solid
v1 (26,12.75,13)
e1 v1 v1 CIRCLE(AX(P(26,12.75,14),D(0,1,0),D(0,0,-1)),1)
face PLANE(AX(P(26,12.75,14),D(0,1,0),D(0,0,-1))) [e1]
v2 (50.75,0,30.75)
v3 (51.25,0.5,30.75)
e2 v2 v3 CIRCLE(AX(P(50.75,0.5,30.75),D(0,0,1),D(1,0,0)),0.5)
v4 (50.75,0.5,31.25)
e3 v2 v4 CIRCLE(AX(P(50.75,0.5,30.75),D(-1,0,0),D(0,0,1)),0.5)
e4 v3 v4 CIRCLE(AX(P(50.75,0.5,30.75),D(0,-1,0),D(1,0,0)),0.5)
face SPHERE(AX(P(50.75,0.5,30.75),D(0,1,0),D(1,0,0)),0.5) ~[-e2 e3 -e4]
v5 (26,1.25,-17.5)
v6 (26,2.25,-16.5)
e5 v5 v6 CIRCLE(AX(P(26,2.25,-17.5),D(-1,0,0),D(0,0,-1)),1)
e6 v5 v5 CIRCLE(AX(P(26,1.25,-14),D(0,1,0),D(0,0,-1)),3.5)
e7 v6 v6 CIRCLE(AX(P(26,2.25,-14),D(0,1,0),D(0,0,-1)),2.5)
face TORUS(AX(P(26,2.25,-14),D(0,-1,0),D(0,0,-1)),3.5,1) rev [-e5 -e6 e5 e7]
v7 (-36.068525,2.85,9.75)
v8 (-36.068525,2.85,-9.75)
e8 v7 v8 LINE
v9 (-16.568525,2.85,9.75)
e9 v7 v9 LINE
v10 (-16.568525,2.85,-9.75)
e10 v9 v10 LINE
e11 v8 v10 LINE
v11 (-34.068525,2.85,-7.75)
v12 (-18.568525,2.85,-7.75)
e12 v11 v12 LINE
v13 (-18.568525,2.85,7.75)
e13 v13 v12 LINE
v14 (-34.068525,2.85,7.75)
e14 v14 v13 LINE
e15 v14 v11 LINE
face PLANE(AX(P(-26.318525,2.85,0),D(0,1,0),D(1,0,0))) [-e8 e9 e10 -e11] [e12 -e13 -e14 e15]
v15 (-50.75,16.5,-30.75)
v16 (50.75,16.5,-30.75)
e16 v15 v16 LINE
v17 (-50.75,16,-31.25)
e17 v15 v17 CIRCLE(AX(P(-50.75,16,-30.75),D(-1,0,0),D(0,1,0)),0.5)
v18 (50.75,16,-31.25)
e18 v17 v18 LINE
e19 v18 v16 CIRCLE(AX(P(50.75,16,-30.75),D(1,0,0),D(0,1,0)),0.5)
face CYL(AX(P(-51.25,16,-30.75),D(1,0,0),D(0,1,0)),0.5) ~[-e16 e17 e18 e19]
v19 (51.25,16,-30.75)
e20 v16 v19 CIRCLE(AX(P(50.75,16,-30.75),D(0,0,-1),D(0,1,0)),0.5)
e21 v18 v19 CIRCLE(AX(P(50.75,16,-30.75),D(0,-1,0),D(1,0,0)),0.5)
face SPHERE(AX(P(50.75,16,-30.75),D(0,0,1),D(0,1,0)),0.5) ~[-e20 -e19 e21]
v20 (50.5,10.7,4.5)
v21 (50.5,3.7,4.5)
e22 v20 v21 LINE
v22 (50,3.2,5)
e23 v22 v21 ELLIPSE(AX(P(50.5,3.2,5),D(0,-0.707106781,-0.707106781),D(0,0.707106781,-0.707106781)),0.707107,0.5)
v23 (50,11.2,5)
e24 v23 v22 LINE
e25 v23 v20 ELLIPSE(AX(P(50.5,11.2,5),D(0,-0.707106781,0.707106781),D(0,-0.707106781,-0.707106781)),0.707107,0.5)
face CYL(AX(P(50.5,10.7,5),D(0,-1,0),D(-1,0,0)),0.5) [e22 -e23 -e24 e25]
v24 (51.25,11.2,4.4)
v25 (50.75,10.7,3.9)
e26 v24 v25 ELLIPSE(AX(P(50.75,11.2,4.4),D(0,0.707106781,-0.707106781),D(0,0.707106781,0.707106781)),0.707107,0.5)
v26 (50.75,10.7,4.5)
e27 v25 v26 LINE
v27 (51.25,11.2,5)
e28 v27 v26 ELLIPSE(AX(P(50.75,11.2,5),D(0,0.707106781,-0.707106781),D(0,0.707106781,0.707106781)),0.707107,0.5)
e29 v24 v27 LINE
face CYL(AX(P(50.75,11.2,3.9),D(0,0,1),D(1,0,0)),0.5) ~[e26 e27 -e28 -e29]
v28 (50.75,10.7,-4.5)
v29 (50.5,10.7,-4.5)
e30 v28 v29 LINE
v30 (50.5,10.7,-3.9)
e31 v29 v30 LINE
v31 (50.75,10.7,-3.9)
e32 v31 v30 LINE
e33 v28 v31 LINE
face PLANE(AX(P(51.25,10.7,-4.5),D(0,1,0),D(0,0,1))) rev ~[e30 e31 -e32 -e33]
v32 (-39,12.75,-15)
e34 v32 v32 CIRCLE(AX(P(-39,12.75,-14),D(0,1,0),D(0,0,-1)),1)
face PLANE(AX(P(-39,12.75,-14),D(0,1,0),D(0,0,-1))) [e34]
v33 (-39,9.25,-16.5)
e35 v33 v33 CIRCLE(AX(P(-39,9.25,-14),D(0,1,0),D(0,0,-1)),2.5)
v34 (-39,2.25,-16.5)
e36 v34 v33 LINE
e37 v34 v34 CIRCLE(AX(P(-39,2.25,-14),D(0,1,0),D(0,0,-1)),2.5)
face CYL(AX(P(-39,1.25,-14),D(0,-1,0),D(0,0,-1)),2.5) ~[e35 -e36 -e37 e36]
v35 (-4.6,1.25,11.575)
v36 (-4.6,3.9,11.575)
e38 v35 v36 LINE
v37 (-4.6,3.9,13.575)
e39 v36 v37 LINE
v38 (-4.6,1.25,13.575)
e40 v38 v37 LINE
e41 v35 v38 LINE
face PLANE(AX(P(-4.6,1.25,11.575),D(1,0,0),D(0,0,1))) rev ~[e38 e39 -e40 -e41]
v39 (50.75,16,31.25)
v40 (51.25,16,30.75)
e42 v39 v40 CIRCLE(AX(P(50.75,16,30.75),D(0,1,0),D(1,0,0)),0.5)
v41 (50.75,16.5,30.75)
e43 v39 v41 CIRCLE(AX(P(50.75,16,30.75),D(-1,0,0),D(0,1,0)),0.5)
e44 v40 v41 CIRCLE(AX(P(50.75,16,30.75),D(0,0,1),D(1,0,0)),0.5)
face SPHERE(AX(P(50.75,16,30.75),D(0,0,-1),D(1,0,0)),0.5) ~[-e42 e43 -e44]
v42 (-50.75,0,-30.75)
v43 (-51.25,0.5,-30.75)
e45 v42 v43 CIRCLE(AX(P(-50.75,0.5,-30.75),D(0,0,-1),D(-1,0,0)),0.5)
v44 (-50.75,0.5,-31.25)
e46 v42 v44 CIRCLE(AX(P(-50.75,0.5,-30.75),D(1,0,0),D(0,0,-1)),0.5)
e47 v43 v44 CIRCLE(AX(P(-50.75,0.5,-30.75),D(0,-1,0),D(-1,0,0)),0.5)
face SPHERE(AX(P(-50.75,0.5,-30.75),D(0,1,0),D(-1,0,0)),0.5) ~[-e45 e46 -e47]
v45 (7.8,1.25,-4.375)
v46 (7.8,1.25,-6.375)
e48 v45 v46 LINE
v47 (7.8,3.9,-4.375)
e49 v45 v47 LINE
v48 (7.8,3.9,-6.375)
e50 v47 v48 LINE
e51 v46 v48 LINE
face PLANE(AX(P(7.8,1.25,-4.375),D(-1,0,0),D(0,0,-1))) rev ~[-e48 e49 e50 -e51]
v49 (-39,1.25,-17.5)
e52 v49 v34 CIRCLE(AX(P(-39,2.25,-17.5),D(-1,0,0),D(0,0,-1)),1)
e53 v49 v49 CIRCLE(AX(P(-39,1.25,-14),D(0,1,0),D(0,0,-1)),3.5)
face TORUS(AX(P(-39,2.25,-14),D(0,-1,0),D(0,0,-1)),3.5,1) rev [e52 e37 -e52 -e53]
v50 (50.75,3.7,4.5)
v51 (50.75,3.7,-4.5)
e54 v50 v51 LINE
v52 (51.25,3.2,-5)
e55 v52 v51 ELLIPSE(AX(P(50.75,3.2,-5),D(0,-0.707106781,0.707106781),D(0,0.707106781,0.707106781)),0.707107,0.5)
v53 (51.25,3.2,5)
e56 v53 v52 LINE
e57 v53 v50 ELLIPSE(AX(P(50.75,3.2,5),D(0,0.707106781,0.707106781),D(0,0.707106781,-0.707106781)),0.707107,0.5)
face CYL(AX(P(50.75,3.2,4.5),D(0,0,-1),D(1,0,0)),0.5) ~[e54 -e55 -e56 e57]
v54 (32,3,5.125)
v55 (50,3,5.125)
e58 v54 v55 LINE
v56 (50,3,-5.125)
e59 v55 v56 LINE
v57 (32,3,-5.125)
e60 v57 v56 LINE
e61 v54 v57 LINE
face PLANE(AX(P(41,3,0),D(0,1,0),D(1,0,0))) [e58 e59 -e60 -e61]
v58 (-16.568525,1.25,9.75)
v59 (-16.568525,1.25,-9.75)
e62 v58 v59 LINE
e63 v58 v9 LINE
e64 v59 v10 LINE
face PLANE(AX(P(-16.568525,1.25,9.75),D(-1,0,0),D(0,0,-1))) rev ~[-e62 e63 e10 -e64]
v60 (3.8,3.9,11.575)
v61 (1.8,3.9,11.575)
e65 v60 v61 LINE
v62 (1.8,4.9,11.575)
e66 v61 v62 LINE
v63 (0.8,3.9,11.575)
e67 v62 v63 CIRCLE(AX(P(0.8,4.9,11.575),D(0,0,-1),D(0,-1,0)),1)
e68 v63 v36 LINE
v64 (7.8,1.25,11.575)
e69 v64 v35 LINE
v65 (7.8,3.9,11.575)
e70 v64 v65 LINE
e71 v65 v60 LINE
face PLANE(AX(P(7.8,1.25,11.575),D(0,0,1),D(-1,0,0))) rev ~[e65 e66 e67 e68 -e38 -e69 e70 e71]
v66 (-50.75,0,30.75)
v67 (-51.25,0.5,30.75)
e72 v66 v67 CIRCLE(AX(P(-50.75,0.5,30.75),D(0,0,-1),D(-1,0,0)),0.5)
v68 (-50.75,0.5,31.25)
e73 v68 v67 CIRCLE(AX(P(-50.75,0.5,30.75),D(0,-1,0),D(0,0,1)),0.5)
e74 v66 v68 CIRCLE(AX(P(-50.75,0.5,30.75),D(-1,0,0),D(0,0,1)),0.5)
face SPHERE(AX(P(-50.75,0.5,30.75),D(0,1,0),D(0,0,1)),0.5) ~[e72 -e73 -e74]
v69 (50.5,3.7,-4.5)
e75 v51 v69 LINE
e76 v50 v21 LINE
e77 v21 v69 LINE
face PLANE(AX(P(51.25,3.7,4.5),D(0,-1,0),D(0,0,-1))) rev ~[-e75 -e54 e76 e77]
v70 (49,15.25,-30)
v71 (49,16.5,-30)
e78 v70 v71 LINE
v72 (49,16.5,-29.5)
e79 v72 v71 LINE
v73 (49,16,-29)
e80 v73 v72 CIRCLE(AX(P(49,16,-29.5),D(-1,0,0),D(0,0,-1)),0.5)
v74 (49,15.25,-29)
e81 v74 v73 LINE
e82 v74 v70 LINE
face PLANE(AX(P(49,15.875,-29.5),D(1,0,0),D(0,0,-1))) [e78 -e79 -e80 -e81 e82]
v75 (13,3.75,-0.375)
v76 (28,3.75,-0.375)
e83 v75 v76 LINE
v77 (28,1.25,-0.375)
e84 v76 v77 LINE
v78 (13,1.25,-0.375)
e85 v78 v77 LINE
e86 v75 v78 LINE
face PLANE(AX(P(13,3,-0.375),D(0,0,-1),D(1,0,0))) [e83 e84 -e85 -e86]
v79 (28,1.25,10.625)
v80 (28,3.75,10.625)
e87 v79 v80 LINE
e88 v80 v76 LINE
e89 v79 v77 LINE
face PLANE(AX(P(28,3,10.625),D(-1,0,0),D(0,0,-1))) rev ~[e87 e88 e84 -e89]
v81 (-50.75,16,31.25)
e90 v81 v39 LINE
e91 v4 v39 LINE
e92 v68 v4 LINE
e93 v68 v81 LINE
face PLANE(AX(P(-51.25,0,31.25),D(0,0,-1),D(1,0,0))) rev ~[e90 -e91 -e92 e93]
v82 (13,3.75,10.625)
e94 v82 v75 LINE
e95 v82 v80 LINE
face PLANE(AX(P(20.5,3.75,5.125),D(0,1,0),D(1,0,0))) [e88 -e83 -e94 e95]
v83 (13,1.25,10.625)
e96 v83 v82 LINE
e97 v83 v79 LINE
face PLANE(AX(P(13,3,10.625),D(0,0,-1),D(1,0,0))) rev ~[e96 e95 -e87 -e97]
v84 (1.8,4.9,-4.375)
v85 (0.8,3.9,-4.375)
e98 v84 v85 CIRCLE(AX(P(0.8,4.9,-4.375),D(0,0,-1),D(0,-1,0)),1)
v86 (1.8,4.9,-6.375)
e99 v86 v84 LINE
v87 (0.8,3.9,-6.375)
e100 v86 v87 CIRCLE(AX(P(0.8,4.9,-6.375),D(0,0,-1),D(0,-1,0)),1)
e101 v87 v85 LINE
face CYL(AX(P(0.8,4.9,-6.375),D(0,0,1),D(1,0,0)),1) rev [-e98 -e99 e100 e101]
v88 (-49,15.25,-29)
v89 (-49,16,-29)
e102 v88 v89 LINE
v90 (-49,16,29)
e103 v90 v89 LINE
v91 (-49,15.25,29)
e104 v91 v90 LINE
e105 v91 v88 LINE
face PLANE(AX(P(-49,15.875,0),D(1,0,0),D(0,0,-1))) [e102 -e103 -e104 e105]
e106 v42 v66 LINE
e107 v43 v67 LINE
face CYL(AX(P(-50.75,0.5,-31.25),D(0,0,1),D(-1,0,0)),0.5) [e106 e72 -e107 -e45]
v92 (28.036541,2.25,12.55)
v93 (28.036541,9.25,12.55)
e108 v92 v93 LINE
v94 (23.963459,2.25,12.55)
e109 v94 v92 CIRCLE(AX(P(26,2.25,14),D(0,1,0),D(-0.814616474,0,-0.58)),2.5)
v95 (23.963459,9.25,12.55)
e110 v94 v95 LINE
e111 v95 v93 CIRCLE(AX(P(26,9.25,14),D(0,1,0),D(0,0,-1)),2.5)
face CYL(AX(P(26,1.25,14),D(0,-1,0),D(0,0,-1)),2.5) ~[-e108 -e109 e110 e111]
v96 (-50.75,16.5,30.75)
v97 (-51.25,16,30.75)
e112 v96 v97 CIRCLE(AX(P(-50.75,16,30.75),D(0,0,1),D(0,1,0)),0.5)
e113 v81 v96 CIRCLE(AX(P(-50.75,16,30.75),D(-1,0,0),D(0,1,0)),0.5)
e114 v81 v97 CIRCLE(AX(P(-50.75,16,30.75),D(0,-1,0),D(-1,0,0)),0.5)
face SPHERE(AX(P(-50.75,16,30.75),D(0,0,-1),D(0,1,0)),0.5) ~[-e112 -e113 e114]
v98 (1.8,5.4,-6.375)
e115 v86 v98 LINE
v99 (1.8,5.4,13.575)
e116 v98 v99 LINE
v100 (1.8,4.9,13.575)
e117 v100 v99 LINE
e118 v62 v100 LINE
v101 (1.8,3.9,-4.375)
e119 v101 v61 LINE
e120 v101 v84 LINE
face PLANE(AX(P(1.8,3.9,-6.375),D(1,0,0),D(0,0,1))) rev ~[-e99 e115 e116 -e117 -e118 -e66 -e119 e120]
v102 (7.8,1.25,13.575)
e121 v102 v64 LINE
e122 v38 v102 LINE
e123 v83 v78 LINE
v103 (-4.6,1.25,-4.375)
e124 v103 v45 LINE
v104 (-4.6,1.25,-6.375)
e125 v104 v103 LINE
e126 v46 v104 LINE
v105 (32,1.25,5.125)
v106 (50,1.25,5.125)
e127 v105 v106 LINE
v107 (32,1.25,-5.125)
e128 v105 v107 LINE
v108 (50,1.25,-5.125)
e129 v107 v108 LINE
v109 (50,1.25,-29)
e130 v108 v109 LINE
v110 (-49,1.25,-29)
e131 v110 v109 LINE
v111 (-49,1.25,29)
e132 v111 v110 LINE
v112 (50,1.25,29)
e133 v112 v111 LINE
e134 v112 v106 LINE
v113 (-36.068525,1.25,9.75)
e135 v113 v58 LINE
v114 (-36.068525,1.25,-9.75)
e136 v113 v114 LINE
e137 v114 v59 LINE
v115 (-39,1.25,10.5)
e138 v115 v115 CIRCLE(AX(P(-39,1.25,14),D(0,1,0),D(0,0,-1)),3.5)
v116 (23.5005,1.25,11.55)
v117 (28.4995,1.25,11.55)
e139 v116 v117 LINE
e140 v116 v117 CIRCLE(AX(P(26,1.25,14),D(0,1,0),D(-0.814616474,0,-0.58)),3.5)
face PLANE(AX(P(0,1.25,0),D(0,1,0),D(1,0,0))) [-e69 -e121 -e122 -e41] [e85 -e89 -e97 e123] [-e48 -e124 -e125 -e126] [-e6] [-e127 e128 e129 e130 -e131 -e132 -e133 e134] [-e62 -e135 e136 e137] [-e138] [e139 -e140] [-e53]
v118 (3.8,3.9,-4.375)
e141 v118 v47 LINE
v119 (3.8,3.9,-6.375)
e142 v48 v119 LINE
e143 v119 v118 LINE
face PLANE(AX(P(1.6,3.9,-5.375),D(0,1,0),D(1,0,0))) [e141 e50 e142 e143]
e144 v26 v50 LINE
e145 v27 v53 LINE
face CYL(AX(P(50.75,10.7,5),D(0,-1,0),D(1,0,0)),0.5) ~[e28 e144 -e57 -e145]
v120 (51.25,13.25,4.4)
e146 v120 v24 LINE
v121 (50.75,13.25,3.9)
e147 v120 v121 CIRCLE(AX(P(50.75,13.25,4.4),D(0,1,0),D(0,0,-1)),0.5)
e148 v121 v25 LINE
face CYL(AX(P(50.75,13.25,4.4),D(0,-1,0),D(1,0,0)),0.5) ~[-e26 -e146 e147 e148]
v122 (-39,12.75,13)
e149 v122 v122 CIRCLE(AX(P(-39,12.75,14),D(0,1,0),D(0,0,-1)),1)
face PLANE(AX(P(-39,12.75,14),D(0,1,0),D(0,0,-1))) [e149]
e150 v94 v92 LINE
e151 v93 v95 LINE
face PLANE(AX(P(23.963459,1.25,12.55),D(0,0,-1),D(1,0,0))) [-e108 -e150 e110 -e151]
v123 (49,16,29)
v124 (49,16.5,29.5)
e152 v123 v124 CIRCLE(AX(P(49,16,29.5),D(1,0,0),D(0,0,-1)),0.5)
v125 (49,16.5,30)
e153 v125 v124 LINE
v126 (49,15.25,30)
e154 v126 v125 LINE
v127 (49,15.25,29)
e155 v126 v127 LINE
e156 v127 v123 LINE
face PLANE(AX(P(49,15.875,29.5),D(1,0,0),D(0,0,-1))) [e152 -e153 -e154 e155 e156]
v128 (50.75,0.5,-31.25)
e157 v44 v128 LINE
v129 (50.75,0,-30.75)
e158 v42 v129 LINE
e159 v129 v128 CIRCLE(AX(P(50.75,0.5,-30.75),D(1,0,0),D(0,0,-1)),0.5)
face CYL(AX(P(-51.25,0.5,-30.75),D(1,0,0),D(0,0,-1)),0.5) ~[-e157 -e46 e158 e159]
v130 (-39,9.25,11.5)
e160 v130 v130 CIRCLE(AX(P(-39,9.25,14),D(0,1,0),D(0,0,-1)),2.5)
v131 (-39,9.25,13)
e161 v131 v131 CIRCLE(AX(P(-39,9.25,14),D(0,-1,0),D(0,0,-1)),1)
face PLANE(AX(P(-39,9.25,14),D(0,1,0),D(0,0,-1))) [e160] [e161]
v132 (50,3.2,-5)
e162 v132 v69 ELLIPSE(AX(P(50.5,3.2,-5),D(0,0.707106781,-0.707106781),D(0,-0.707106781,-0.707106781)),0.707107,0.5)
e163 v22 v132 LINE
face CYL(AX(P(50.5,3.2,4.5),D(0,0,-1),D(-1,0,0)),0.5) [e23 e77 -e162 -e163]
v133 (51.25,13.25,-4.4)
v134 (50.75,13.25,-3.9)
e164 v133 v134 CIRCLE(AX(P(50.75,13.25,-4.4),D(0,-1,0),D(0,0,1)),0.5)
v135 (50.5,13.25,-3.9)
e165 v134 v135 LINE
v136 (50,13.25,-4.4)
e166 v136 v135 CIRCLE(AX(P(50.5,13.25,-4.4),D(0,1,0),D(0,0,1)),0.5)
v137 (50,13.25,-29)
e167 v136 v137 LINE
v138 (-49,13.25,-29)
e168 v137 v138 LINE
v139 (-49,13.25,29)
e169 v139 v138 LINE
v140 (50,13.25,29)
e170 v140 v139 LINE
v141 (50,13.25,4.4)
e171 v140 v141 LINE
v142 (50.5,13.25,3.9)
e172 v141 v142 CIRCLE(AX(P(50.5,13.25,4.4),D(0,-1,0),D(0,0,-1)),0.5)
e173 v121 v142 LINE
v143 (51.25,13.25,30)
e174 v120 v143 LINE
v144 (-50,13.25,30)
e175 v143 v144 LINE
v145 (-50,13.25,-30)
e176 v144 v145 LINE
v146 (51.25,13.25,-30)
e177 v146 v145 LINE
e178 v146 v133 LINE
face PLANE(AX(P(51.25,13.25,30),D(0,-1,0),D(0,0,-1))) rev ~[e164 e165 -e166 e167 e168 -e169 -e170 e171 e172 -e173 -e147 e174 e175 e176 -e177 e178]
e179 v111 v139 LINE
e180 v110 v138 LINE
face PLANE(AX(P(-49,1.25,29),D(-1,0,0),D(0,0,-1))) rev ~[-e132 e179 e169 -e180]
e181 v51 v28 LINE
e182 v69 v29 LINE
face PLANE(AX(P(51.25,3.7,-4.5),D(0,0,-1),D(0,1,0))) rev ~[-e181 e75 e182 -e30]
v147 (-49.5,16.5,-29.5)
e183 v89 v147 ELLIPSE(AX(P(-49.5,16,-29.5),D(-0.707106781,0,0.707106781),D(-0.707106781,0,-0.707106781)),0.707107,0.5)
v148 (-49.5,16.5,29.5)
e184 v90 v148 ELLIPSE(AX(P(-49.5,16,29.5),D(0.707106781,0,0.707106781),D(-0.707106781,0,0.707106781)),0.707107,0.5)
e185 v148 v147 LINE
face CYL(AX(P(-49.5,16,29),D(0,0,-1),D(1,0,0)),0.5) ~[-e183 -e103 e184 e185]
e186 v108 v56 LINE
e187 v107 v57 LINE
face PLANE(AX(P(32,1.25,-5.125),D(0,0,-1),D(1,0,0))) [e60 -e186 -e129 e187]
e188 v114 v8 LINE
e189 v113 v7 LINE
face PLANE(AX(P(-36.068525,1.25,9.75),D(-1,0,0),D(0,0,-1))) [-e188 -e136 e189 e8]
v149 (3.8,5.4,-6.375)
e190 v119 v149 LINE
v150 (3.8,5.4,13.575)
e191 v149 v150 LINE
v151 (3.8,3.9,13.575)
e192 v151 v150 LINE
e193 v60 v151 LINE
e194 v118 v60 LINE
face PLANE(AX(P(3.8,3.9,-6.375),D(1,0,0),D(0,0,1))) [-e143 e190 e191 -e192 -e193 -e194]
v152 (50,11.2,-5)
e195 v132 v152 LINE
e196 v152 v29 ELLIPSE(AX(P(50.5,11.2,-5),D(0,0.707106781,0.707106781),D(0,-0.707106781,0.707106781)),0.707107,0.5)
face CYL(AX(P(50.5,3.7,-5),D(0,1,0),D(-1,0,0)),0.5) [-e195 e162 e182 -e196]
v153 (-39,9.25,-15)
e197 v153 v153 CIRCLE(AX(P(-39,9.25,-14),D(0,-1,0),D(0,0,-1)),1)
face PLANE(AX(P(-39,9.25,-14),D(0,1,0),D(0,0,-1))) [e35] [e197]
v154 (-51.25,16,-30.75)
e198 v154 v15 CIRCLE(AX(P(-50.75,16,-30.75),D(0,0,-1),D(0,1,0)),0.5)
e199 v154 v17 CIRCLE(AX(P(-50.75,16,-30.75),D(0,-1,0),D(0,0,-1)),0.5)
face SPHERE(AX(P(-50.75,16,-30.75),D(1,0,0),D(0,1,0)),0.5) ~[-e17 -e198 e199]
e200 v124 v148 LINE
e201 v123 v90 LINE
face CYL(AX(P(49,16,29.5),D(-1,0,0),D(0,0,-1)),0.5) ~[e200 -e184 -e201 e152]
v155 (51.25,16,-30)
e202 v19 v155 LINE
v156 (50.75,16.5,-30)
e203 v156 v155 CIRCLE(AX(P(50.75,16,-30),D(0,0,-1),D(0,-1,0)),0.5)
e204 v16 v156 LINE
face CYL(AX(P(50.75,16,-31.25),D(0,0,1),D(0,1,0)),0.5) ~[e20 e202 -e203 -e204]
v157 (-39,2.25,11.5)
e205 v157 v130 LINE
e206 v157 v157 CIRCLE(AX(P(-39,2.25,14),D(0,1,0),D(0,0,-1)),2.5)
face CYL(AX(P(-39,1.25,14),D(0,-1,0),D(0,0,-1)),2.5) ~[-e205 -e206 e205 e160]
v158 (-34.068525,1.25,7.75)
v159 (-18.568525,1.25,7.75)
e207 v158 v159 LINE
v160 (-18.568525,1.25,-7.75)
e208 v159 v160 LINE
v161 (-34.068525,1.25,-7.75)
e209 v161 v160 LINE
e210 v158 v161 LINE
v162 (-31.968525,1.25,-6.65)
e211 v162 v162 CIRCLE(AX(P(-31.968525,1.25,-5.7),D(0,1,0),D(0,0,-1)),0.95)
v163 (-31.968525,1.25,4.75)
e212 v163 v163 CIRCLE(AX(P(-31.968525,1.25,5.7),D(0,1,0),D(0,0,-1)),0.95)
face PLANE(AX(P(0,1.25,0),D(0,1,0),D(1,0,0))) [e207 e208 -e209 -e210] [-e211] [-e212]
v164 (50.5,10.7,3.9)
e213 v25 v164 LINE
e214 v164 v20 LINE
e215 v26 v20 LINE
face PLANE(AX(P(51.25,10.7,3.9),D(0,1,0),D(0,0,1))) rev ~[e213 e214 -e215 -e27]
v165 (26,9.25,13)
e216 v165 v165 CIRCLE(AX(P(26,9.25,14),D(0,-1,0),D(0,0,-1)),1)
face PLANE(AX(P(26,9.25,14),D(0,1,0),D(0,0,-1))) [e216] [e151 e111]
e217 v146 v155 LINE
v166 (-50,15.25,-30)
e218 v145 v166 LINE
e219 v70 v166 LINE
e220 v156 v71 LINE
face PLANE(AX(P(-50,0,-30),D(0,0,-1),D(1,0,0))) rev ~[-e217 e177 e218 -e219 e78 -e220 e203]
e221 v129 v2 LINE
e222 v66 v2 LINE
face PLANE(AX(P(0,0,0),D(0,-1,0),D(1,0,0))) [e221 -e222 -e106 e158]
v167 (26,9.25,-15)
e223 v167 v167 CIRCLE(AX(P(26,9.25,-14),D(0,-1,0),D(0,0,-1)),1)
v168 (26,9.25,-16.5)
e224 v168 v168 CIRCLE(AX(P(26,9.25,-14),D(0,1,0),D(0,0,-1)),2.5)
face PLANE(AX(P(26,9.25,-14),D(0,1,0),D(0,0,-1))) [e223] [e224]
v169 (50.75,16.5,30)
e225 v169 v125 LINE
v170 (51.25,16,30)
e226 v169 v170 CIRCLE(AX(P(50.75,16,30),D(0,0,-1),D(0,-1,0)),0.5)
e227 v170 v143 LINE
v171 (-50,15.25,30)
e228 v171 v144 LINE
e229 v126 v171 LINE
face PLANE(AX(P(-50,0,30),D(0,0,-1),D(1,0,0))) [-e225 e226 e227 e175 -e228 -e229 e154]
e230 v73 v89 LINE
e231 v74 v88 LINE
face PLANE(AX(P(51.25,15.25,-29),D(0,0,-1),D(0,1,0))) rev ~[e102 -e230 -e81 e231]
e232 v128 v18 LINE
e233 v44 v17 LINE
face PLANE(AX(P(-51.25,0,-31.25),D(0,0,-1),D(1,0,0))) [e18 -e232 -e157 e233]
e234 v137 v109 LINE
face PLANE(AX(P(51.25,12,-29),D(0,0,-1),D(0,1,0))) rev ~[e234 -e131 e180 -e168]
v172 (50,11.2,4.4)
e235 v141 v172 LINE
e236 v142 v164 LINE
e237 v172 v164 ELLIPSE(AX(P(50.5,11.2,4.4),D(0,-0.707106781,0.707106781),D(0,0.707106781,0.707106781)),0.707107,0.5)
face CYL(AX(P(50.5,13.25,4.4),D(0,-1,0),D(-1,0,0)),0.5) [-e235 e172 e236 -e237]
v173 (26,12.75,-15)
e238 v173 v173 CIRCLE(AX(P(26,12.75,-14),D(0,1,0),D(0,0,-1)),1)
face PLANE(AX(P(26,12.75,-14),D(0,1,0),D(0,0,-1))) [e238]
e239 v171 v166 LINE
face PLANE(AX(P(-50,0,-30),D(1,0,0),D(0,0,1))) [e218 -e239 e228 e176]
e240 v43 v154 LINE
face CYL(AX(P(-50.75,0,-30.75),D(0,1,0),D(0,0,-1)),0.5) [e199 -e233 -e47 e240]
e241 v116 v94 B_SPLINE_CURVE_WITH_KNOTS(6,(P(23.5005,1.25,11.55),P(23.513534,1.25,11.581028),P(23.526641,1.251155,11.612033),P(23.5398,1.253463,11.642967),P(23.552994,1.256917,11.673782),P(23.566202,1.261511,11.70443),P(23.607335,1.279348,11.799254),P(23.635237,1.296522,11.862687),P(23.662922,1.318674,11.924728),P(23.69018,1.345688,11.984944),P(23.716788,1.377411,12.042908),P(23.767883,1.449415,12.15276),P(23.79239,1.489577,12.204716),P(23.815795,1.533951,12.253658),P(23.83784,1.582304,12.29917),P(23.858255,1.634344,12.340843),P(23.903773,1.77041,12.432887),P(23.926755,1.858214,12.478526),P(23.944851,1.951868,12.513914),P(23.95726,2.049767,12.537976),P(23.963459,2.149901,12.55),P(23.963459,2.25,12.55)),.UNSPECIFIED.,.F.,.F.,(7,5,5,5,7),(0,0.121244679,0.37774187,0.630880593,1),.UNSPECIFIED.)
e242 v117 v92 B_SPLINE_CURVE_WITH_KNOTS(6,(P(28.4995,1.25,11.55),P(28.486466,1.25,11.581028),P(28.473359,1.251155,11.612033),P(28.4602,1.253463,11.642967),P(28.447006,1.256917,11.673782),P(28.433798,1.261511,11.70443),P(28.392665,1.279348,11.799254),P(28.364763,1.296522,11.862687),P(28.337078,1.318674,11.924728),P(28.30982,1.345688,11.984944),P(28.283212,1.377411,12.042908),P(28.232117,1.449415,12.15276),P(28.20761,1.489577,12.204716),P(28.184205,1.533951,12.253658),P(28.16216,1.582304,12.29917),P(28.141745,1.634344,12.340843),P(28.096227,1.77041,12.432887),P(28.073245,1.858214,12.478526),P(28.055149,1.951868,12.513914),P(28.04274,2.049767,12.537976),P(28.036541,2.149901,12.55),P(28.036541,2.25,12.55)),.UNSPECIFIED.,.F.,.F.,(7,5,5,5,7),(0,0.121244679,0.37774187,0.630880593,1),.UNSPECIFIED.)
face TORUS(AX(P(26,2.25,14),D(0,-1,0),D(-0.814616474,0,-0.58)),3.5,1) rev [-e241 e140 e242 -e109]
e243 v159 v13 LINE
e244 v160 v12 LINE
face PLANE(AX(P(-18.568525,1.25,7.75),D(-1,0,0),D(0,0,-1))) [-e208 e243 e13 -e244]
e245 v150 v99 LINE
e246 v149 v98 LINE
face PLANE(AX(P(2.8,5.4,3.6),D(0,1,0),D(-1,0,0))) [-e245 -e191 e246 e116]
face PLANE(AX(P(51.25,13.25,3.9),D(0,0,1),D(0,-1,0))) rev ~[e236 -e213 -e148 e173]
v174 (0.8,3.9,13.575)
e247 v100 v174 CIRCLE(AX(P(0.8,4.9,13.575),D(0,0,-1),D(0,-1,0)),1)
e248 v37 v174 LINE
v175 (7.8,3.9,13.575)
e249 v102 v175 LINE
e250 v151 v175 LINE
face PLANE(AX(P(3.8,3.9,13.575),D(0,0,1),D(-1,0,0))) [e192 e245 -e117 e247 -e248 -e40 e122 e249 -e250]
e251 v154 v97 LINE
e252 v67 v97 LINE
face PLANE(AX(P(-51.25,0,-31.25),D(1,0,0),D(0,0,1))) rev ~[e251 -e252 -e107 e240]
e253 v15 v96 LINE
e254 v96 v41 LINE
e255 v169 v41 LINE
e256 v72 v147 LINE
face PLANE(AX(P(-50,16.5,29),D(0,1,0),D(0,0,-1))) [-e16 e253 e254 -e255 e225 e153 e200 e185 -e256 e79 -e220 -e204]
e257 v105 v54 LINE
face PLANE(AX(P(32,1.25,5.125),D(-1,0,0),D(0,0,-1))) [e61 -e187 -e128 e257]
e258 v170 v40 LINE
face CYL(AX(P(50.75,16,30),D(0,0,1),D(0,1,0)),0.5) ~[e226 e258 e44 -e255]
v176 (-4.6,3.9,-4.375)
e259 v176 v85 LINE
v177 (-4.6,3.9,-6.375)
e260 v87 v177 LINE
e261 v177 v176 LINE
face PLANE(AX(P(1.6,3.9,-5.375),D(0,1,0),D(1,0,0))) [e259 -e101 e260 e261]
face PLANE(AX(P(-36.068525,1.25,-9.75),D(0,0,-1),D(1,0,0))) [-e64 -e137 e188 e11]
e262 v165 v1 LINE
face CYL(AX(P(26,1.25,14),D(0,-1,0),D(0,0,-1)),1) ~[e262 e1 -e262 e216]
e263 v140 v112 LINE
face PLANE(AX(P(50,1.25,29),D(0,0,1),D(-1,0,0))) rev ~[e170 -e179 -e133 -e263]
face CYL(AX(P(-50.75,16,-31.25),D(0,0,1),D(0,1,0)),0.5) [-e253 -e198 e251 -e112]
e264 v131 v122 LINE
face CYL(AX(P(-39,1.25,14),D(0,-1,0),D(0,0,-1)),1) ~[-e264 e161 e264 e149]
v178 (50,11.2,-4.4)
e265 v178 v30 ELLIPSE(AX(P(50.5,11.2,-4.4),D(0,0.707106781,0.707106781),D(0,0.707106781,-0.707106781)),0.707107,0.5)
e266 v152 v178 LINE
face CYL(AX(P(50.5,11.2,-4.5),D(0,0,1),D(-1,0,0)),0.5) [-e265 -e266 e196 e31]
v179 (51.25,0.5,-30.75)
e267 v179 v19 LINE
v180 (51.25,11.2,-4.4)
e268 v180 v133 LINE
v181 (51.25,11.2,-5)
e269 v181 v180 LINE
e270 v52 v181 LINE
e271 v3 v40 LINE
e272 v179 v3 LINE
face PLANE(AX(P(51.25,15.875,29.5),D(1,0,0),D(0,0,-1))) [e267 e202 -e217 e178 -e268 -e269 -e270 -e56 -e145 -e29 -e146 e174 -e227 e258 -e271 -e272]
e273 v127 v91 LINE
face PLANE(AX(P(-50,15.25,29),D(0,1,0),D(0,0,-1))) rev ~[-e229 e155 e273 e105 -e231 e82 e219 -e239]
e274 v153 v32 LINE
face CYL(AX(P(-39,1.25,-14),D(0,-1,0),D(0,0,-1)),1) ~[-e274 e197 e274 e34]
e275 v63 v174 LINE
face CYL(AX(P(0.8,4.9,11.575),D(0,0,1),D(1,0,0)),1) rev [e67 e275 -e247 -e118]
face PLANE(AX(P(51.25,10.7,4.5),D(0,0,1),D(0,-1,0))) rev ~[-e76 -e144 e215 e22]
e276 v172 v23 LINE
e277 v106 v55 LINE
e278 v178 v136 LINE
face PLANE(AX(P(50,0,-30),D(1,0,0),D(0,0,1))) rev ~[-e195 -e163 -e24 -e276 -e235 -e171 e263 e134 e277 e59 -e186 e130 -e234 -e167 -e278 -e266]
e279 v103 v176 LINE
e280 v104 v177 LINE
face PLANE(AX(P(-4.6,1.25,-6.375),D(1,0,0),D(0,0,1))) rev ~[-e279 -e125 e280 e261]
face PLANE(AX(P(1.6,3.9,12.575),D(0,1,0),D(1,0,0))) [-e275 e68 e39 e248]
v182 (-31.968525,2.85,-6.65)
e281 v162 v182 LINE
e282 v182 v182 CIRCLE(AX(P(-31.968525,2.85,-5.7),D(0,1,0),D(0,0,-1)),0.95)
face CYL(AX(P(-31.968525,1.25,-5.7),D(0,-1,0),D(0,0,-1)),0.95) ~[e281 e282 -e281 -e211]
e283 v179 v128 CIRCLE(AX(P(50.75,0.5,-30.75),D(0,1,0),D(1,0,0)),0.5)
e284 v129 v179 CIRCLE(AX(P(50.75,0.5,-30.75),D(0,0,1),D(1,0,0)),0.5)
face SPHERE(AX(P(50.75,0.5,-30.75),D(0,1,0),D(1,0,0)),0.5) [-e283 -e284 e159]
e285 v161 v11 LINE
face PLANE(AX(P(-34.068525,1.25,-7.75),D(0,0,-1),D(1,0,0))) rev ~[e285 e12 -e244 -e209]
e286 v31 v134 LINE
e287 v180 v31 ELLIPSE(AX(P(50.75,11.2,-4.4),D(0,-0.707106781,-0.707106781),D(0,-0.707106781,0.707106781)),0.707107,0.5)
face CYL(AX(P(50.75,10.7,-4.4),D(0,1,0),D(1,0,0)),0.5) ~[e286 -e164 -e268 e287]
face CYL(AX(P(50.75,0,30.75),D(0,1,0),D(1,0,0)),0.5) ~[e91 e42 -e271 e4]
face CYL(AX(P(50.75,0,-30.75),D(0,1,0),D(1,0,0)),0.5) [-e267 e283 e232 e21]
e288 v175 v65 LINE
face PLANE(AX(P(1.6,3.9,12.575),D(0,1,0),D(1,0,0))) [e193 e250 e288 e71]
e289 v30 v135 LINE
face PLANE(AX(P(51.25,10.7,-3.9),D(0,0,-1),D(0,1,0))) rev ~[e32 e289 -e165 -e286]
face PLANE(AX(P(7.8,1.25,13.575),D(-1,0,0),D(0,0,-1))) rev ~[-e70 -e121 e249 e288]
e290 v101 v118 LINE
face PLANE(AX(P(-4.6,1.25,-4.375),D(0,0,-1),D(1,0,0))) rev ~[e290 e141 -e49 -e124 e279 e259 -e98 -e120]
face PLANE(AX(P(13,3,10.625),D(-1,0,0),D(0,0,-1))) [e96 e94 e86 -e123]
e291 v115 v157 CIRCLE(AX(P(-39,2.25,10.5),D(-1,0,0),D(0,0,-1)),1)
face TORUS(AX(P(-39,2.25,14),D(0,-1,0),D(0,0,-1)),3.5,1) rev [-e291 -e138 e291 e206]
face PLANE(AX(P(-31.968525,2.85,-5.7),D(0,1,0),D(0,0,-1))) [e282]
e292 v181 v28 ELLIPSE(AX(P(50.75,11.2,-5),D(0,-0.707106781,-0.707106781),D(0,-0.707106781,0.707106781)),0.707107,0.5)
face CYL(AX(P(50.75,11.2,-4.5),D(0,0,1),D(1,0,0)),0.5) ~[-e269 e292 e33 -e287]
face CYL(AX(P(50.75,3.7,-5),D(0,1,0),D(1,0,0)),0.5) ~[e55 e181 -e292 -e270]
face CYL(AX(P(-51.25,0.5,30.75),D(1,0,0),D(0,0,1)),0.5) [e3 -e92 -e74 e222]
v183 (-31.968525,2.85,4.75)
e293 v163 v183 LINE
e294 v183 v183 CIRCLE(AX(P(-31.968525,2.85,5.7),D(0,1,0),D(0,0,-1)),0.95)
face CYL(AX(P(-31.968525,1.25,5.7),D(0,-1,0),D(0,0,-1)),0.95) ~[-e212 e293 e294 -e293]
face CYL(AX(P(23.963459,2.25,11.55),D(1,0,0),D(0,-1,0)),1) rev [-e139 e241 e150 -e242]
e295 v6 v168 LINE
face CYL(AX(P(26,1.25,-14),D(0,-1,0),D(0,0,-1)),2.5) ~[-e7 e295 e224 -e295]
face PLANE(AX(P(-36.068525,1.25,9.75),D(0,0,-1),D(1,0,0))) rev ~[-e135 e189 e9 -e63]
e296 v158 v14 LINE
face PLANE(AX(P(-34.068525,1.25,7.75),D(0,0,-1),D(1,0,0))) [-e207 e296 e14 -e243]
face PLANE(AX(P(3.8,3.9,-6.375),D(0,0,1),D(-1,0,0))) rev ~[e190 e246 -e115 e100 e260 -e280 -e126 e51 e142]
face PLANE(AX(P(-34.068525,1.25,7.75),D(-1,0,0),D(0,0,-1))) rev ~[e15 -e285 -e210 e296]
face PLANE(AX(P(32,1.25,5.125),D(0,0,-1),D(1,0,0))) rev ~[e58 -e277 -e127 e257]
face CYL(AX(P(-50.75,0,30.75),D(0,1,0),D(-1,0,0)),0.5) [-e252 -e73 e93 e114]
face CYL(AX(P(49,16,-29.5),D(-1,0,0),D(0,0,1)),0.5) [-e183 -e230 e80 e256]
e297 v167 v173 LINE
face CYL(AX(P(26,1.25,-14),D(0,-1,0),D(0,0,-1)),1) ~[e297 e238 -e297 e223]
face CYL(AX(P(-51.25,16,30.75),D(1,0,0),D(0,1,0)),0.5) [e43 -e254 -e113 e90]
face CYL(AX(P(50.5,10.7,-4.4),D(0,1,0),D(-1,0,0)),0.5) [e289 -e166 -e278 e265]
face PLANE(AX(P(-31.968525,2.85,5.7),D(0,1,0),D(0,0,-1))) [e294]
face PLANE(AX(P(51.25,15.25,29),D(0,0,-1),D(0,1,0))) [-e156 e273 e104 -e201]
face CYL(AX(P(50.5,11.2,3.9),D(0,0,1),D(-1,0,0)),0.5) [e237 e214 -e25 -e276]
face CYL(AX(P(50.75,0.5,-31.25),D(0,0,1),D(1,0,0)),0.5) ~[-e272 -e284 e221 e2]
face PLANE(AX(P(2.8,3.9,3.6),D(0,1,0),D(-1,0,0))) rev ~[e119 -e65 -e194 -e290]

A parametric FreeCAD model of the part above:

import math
import FreeCAD as App
import Part
import Sketcher
from FreeCAD import Vector


def edges_at(feature, points):
    """Names of the edges that pass closest to the given points."""
    edges = feature.Shape.Edges
    near = lambda p: min(range(len(edges)), key=lambda i: edges[i].distToShape(Part.Vertex(*p))[0])
    return sorted({f"Edge{near(p) + 1}" for p in points})


def add_polygon(sketch, points):
    """Adds a closed chain of lines whose ends are joined by coincident constraints."""
    first, n = sketch.GeometryCount, len(points)
    for a, b in zip(points, points[1:] + points[:1]):
        sketch.addGeometry(Part.LineSegment(App.Vector(*a, 0), App.Vector(*b, 0)), False)
    for i in range(n):
        sketch.addConstraint(Sketcher.Constraint("Coincident", first + i, 2, first + (i + 1) % n, 1))

doc = App.newDocument("Part")
body = doc.addObject("PartDesign::Body", "Body")

# Sketch on XZ plane
sketch1 = body.newObject("Sketcher::SketchObject", "Sketch")
sketch1.AttachmentSupport = (doc.getObject("XZ_Plane"), [""])
sketch1.MapMode = "FlatFace"
add_polygon(sketch1, [(-50, -30), (-50, 30), (50, 30), (50, -30)])  # lines 0-3
sketch1.addConstraint([
    Sketcher.Constraint("Vertical", 0),
    Sketcher.Constraint("Horizontal", 1),
    Sketcher.Constraint("Vertical", 2),
    Sketcher.Constraint("Horizontal", 3),
    Sketcher.Constraint("Symmetric", 0, 2, 2, 2, -1, 1),
    Sketcher.Constraint("DistanceX", 1, 1, 1, 2, 100.0),
    Sketcher.Constraint("DistanceY", 0, 1, 0, 2, 60.0),
])
pad1 = body.newObject("PartDesign::Pad", "Pad")
pad1.Profile = sketch1
pad1.Length = 1.25
pad1.Reversed = True

# Sketch on XZ plane
sketch2 = body.newObject("Sketcher::SketchObject", "Sketch001")
sketch2.AttachmentSupport = (doc.getObject("XZ_Plane"), [""])
sketch2.MapMode = "FlatFace"
sketch2.AttachmentOffset = App.Placement(Vector(0, 0, -1.25), App.Rotation())
sketch2.addGeometry([
    Part.Circle(Vector(-39, -14, 0), Vector(0, 0, 1), 1),
    Part.Circle(Vector(26, -14, 0), Vector(0, 0, 1), 1),
    Part.Circle(Vector(26, 14, 0), Vector(0, 0, 1), 1),
    Part.Circle(Vector(-39, 14, 0), Vector(0, 0, 1), 1),
], False)
sketch2.addConstraint([
    Sketcher.Constraint("Equal", 0, 1),
    Sketcher.Constraint("Equal", 1, 2),
    Sketcher.Constraint("Equal", 2, 3),
    Sketcher.Constraint("Symmetric", 1, 3, 2, 3, -1),
    Sketcher.Constraint("Symmetric", 0, 3, 3, 3, -1),
    Sketcher.Constraint("Horizontal", 0, 3, 1, 3),
    Sketcher.Constraint("Diameter", 0, 2.0),
    Sketcher.Constraint("DistanceX", 0, 3, -1, 1, 39.0),
    Sketcher.Constraint("DistanceY", 0, 3, -1, 1, 14.0),
    Sketcher.Constraint("DistanceX", -1, 1, 1, 3, 26.0),
])
pad2 = body.newObject("PartDesign::Pad", "Pad001")
pad2.Profile = sketch2
pad2.Length = 11.5
pad2.Reversed = True

# Sketch on XZ plane
sketch3 = body.newObject("Sketcher::SketchObject", "Sketch002")
sketch3.AttachmentSupport = (doc.getObject("XZ_Plane"), [""])
sketch3.MapMode = "FlatFace"
add_polygon(sketch3, [(-51, 31), (-51, -31), (51, -31), (51, 31)])  # lines 0-3
add_polygon(sketch3, [(50, -30), (-50, -30), (-50, 30), (50, 30)])  # lines 4-7
sketch3.addConstraint([
    Sketcher.Constraint("Vertical", 0),
    Sketcher.Constraint("Horizontal", 1),
    Sketcher.Constraint("Vertical", 2),
    Sketcher.Constraint("Horizontal", 3),
    Sketcher.Constraint("Horizontal", 4),
    Sketcher.Constraint("Vertical", 5),
    Sketcher.Constraint("Horizontal", 6),
    Sketcher.Constraint("Vertical", 7),
    Sketcher.Constraint("Symmetric", 0, 2, 2, 2, -1, 1),
    Sketcher.Constraint("Symmetric", 4, 2, 6, 2, -1, 1),
    Sketcher.Constraint("DistanceX", 4, 2, 4, 1, 100.0),
    Sketcher.Constraint("DistanceY", 5, 1, 5, 2, 60.0),
    Sketcher.Constraint("DistanceX", 1, 1, 1, 2, 102.5),
    Sketcher.Constraint("DistanceY", 0, 2, 0, 1, 62.5),
])
pad3 = body.newObject("PartDesign::Pad", "Pad002")
pad3.Profile = sketch3
pad3.Length = 16.5
pad3.Reversed = True

# Sketch on XZ plane
sketch4 = body.newObject("Sketcher::SketchObject", "Sketch003")
sketch4.AttachmentSupport = (doc.getObject("XZ_Plane"), [""])
sketch4.MapMode = "FlatFace"
sketch4.AttachmentOffset = App.Placement(Vector(0, 0, -1.25), App.Rotation())
sketch4.addGeometry([
    Part.Circle(Vector(-39, -14, 0), Vector(0, 0, 1), 2.5),
    Part.Circle(Vector(26, -14, 0), Vector(0, 0, 1), 2.5),
    Part.Circle(Vector(26, 14, 0), Vector(0, 0, 1), 2.5),
    Part.Circle(Vector(-39, 14, 0), Vector(0, 0, 1), 2.5),
], False)
sketch4.addConstraint([
    Sketcher.Constraint("Equal", 0, 1),
    Sketcher.Constraint("Equal", 1, 2),
    Sketcher.Constraint("Equal", 2, 3),
    Sketcher.Constraint("Symmetric", 1, 3, 2, 3, -1),
    Sketcher.Constraint("Symmetric", 0, 3, 3, 3, -1),
    Sketcher.Constraint("Horizontal", 0, 3, 1, 3),
    Sketcher.Constraint("Diameter", 0, 5.0),
    Sketcher.Constraint("DistanceX", 0, 3, -1, 1, 39.0),
    Sketcher.Constraint("DistanceY", 0, 3, -1, 1, 14.0),
    Sketcher.Constraint("DistanceX", -1, 1, 1, 3, 26.0),
])
pad4 = body.newObject("PartDesign::Pad", "Pad003")
pad4.Profile = sketch4
pad4.Length = 8
pad4.Reversed = True

# Sketch on YZ plane
sketch5 = body.newObject("Sketcher::SketchObject", "Sketch004")
sketch5.AttachmentSupport = (doc.getObject("YZ_Plane"), [""])
sketch5.MapMode = "FlatFace"
sketch5.AttachmentOffset = App.Placement(Vector(0, 0, 51.25), App.Rotation())
add_polygon(sketch5, [(16.5, 30), (13.2, 30), (13.2, -30), (16.5, -30)])  # lines 0-3
sketch5.addConstraint([
    Sketcher.Constraint("Horizontal", 0),
    Sketcher.Constraint("Vertical", 1),
    Sketcher.Constraint("Horizontal", 2),
    Sketcher.Constraint("Vertical", 3),
    Sketcher.Constraint("DistanceY", 1, 2, 1, 1, 60.0),
    Sketcher.Constraint("DistanceY", -1, 1, 0, 2, 30.0),
    Sketcher.Constraint("DistanceX", 0, 2, 0, 1, 3.25),
    Sketcher.Constraint("DistanceX", -1, 1, 2, 2, 16.5),
])
pocket1 = body.newObject("PartDesign::Pocket", "Pocket")
pocket1.Profile = sketch5
pocket1.Length = 101.25

# Sketch on YZ plane
sketch6 = body.newObject("Sketcher::SketchObject", "Sketch005")
sketch6.AttachmentSupport = (doc.getObject("YZ_Plane"), [""])
sketch6.MapMode = "FlatFace"
sketch6.AttachmentOffset = App.Placement(Vector(0, 0, 51.25), App.Rotation())
add_polygon(sketch6, [(16.5, 30), (15.2, 30), (15.2, 29), (16.5, 29)])  # lines 0-3
add_polygon(sketch6, [(16.5, -29), (15.2, -29), (15.2, -30), (16.5, -30)])  # lines 4-7
add_polygon(sketch6, [(13.2, 30), (12, 30), (12, 29), (13.2, 29)])  # lines 8-11
add_polygon(sketch6, [(13.2, -29), (12, -29), (12, -30), (13.2, -30)])  # lines 12-15
sketch6.addConstraint([
    Sketcher.Constraint("Horizontal", 0),
    Sketcher.Constraint("Vertical", 1),
    Sketcher.Constraint("Horizontal", 2),
    Sketcher.Constraint("Vertical", 3),
    Sketcher.Constraint("Horizontal", 4),
    Sketcher.Constraint("Vertical", 5),
    Sketcher.Constraint("Horizontal", 6),
    Sketcher.Constraint("Vertical", 7),
    Sketcher.Constraint("Horizontal", 8),
    Sketcher.Constraint("Vertical", 9),
    Sketcher.Constraint("Horizontal", 10),
    Sketcher.Constraint("Vertical", 11),
    Sketcher.Constraint("Horizontal", 12),
    Sketcher.Constraint("Vertical", 13),
    Sketcher.Constraint("Horizontal", 14),
    Sketcher.Constraint("Vertical", 15),
    Sketcher.Constraint("Symmetric", 1, 2, 4, 2, -1),
    Sketcher.Constraint("Symmetric", 3, 2, 6, 2, -1),
    Sketcher.Constraint("Symmetric", 9, 2, 12, 2, -1),
    Sketcher.Constraint("Symmetric", 11, 2, 14, 2, -1),
    Sketcher.Constraint("Horizontal", 3, 2, 8, 2),
    Sketcher.Constraint("Horizontal", 2, 2, 9, 2),
    Sketcher.Constraint("Equal", 6, 8),
    Sketcher.Constraint("DistanceY", 1, 2, 1, 1, 1.0),
    Sketcher.Constraint("DistanceY", -1, 1, 0, 2, 30.0),
    Sketcher.Constraint("DistanceX", -1, 1, 8, 2, 12.0),
    Sketcher.Constraint("DistanceX", 10, 2, 1, 2, 2.0),
    Sketcher.Constraint("DistanceX", 0, 2, 0, 1, 1.25),
])
pad5 = body.newObject("PartDesign::Pad", "Pad004")
pad5.Profile = sketch6
pad5.Length = 101.25
pad5.Reversed = True

# Sketch on YZ plane
sketch7 = body.newObject("Sketcher::SketchObject", "Sketch006")
sketch7.AttachmentSupport = (doc.getObject("YZ_Plane"), [""])
sketch7.MapMode = "FlatFace"
sketch7.AttachmentOffset = App.Placement(Vector(0, 0, 51.25), App.Rotation())
add_polygon(sketch7, [(16.5, 30), (15.2, 30), (15.2, 29), (16.5, 29)])  # lines 0-3
add_polygon(sketch7, [(16.5, -29), (15.2, -29), (15.2, -30), (16.5, -30)])  # lines 4-7
sketch7.addConstraint([
    Sketcher.Constraint("Horizontal", 0),
    Sketcher.Constraint("Vertical", 1),
    Sketcher.Constraint("Horizontal", 2),
    Sketcher.Constraint("Vertical", 3),
    Sketcher.Constraint("Horizontal", 4),
    Sketcher.Constraint("Vertical", 5),
    Sketcher.Constraint("Horizontal", 6),
    Sketcher.Constraint("Vertical", 7),
    Sketcher.Constraint("Symmetric", 1, 2, 4, 2, -1),
    Sketcher.Constraint("Symmetric", 3, 2, 6, 2, -1),
    Sketcher.Constraint("DistanceY", 1, 2, 1, 1, 1.0),
    Sketcher.Constraint("DistanceY", -1, 1, 0, 2, 30.0),
    Sketcher.Constraint("DistanceX", 0, 2, 0, 1, 1.25),
    Sketcher.Constraint("DistanceX", -1, 1, 2, 2, 16.5),
])
pocket2 = body.newObject("PartDesign::Pocket", "Pocket001")
pocket2.Profile = sketch7
pocket2.Length = 2.25

# Sketch on YZ plane
sketch8 = body.newObject("Sketcher::SketchObject", "Sketch007")
sketch8.AttachmentSupport = (doc.getObject("YZ_Plane"), [""])
sketch8.MapMode = "FlatFace"
sketch8.AttachmentOffset = App.Placement(Vector(0, 0, -50), App.Rotation())
add_polygon(sketch8, [(16.5, 29), (15.2, 29), (15.2, -29), (16.5, -29)])  # lines 0-3
add_polygon(sketch8, [(13.2, 29), (12, 29), (12, -29), (13.2, -29)])  # lines 4-7
sketch8.addConstraint([
    Sketcher.Constraint("Horizontal", 0),
    Sketcher.Constraint("Vertical", 1),
    Sketcher.Constraint("Horizontal", 2),
    Sketcher.Constraint("Vertical", 3),
    Sketcher.Constraint("Horizontal", 4),
    Sketcher.Constraint("Vertical", 5),
    Sketcher.Constraint("Horizontal", 6),
    Sketcher.Constraint("Vertical", 7),
    Sketcher.Constraint("Horizontal", 3, 2, 4, 2),
    Sketcher.Constraint("Horizontal", 2, 2, 5, 2),
    Sketcher.Constraint("Equal", 2, 4),
    Sketcher.Constraint("DistanceY", 1, 2, 1, 1, 58.0),
    Sketcher.Constraint("DistanceY", -1, 1, 0, 2, 29.0),
    Sketcher.Constraint("DistanceX", -1, 1, 4, 2, 12.0),
    Sketcher.Constraint("DistanceX", 6, 2, 1, 2, 2.0),
    Sketcher.Constraint("DistanceX", 0, 2, 0, 1, 1.25),
])
pad6 = body.newObject("PartDesign::Pad", "Pad005")
pad6.Profile = sketch8
pad6.Length = 1

# Sketch on YZ plane
sketch9 = body.newObject("Sketcher::SketchObject", "Sketch008")
sketch9.AttachmentSupport = (doc.getObject("YZ_Plane"), [""])
sketch9.MapMode = "FlatFace"
sketch9.AttachmentOffset = App.Placement(Vector(0, 0, 51.25), App.Rotation())
add_polygon(sketch9, [(13.2, 3.9), (10.7, 3.9), (10.7, 4.5), (3.7, 4.5), (3.7, -4.5), (10.7, -4.5), (10.7, -3.9), (13.2, -3.9)])  # lines 0-7
sketch9.addConstraint([
    Sketcher.Constraint("Horizontal", 0),
    Sketcher.Constraint("Vertical", 1),
    Sketcher.Constraint("Horizontal", 2),
    Sketcher.Constraint("Vertical", 3),
    Sketcher.Constraint("Horizontal", 4),
    Sketcher.Constraint("Vertical", 5),
    Sketcher.Constraint("Horizontal", 6),
    Sketcher.Constraint("Vertical", 7),
    Sketcher.Constraint("Symmetric", 1, 2, 4, 2, -1),
    Sketcher.Constraint("Equal", 1, 5),
    Sketcher.Constraint("DistanceX", 2, 2, 2, 1, 7.0),
    Sketcher.Constraint("DistanceY", 3, 2, 3, 1, 9.0),
    Sketcher.Constraint("DistanceY", 1, 1, 1, 2, 0.6),
    Sketcher.Constraint("DistanceX", 0, 2, 0, 1, 2.55),
    Sketcher.Constraint("DistanceX", -1, 1, 0, 2, 10.7),
])
pocket3 = body.newObject("PartDesign::Pocket", "Pocket002")
pocket3.Profile = sketch9
pocket3.Length = 1.75
doc.recompute()

fillet = body.newObject("PartDesign::Fillet", "Fillet")
fillet.Base = (pocket3, edges_at(pocket3, [
    (51.25, 16.5, 30.625),
    (0, 16.5, -29),
    (0, 16.5, 29),
    (-49, 16.5, 0),
    (50, 3.7, 0),
    (50, 7.2, 4.5),
    (51.25, 10.7, 4.2),
    (51.25, 10.7, -4.2),
    (51.25, 7.2, -4.5),
    (51.25, 11.975, 3.9),
    (51.25, 11.975, -3.9),
    (50, 10.7, 4.2),
    (50, 11.975, 3.9),
    (50, 11.975, -3.9),
    (50, 10.7, -4.2),
    (50, 7.2, -4.5),
    (51.25, 3.7, 0),
    (51.25, 7.2, 4.5),
    (51.25, 16.5, -30.625),
    (51.25, 8.25, 31.25),
    (0, 16.5, -31.25),
    (51.25, 8.25, -31.25),
    (-51.25, 16.5, 0),
    (-51.25, 8.25, -31.25),
    (0, 16.5, 31.25),
    (-51.25, 8.25, 31.25),
    (51.25, 0, 0),
    (0, 0, 31.25),
    (-51.25, 0, 0),
    (0, 0, -31.25),
]))
fillet.Radius = 0.5

# Sketch on XZ plane
sketch10 = body.newObject("Sketcher::SketchObject", "Sketch009")
sketch10.AttachmentSupport = (doc.getObject("XZ_Plane"), [""])
sketch10.MapMode = "FlatFace"
sketch10.AttachmentOffset = App.Placement(Vector(0, 0, -1.25), App.Rotation())
add_polygon(sketch10, [(-36.1, -9.8), (-36.1, 9.8), (-16.6, 9.8), (-16.6, -9.8)])  # lines 0-3
add_polygon(sketch10, [(-18.6, 7.8), (-34.1, 7.8), (-34.1, -7.8), (-18.6, -7.8)])  # lines 4-7
sketch10.addGeometry(Part.Circle(Vector(-32, 5.7, 0), Vector(0, 0, 1), 0.9), False)  # 8
sketch10.addGeometry(Part.Circle(Vector(-32, -5.7, 0), Vector(0, 0, 1), 0.9), False)  # 9
sketch10.addConstraint([
    Sketcher.Constraint("Vertical", 0),
    Sketcher.Constraint("Horizontal", 1),
    Sketcher.Constraint("Vertical", 2),
    Sketcher.Constraint("Horizontal", 3),
    Sketcher.Constraint("Horizontal", 4),
    Sketcher.Constraint("Vertical", 5),
    Sketcher.Constraint("Horizontal", 6),
    Sketcher.Constraint("Vertical", 7),
    Sketcher.Constraint("Equal", 8, 9),
    Sketcher.Constraint("Symmetric", 8, 3, 9, 3, -1),
    Sketcher.Constraint("Equal", 3, 0),
    Sketcher.Constraint("Equal", 6, 5),
    Sketcher.Constraint("Diameter", 8, 1.9),
    Sketcher.Constraint("DistanceX", 1, 1, 1, 2, 19.5),
    Sketcher.Constraint("DistanceX", 4, 2, 4, 1, 15.5),
    Sketcher.Constraint("DistanceX", 0, 2, 4, 2, 2.0),
    Sketcher.Constraint("DistanceY", 4, 2, 0, 2, 2.0),
    Sketcher.Constraint("DistanceY", -1, 1, 8, 3, 5.7),
    Sketcher.Constraint("DistanceX", 0, 2, 8, 3, 4.1),
    Sketcher.Constraint("DistanceY", -1, 1, 0, 2, 9.75),
    Sketcher.Constraint("DistanceX", 8, 3, -1, 1, 31.968525),
])
pad7 = body.newObject("PartDesign::Pad", "Pad006")
pad7.Profile = sketch10
pad7.Length = 1.6
pad7.Reversed = True

# Sketch on XZ plane
sketch11 = body.newObject("Sketcher::SketchObject", "Sketch010")
sketch11.AttachmentSupport = (doc.getObject("XZ_Plane"), [""])
sketch11.MapMode = "FlatFace"
sketch11.AttachmentOffset = App.Placement(Vector(0, 0, -1.25), App.Rotation())
add_polygon(sketch11, [(32, -5), (32, 5), (50, 5), (50, -5)])  # lines 0-3
add_polygon(sketch11, [(13, 0), (13, 11), (28, 11), (28, 0)])  # lines 4-7
sketch11.addConstraint([
    Sketcher.Constraint("Vertical", 0),
    Sketcher.Constraint("Horizontal", 1),
    Sketcher.Constraint("Vertical", 2),
    Sketcher.Constraint("Horizontal", 3),
    Sketcher.Constraint("Vertical", 4),
    Sketcher.Constraint("Horizontal", 5),
    Sketcher.Constraint("Vertical", 6),
    Sketcher.Constraint("Horizontal", 7),
    Sketcher.Constraint("DistanceX", 1, 1, 1, 2, 18.0),
    Sketcher.Constraint("DistanceX", 5, 1, 5, 2, 15.0),
    Sketcher.Constraint("DistanceY", 4, 1, 4, 2, 11.0),
    Sketcher.Constraint("DistanceX", -1, 1, 0, 2, 32.0),
    Sketcher.Constraint("DistanceX", -1, 1, 4, 2, 13.0),
    Sketcher.Constraint("DistanceY", 0, 1, 0, 2, 10.25),
    Sketcher.Constraint("DistanceY", 0, 2, 4, 2, 5.5),
    Sketcher.Constraint("DistanceY", -1, 1, 0, 2, 5.125),
])
pad8 = body.newObject("PartDesign::Pad", "Pad007")
pad8.Profile = sketch11
pad8.Length = 1.75
pad8.Reversed = True

# Sketch on XZ plane
sketch12 = body.newObject("Sketcher::SketchObject", "Sketch011")
sketch12.AttachmentSupport = (doc.getObject("XZ_Plane"), [""])
sketch12.MapMode = "FlatFace"
sketch12.AttachmentOffset = App.Placement(Vector(0, 0, -1.25), App.Rotation())
add_polygon(sketch12, [(7.8, 13.6), (7.8, 11.6), (-4.6, 11.6), (-4.6, 13.6)])  # lines 0-3
add_polygon(sketch12, [(7.8, -6.4), (-4.6, -6.4), (-4.6, -4.4), (7.8, -4.4)])  # lines 4-7
sketch12.addConstraint([
    Sketcher.Constraint("Vertical", 0),
    Sketcher.Constraint("Horizontal", 1),
    Sketcher.Constraint("Vertical", 2),
    Sketcher.Constraint("Horizontal", 3),
    Sketcher.Constraint("Horizontal", 4),
    Sketcher.Constraint("Vertical", 5),
    Sketcher.Constraint("Horizontal", 6),
    Sketcher.Constraint("Vertical", 7),
    Sketcher.Constraint("Vertical", 2, 2, 4, 2),
    Sketcher.Constraint("Vertical", 3, 2, 6, 2),
    Sketcher.Constraint("Equal", 2, 5),
    Sketcher.Constraint("DistanceY", 0, 2, 0, 1, 2.0),
    Sketcher.Constraint("DistanceX", 1, 2, 1, 1, 12.4),
    Sketcher.Constraint("DistanceX", -1, 1, 0, 2, 7.8),
    Sketcher.Constraint("DistanceY", 4, 2, 1, 2, 17.95),
    Sketcher.Constraint("DistanceY", -1, 1, 0, 2, 11.575),
])
pad9 = body.newObject("PartDesign::Pad", "Pad008")
pad9.Profile = sketch12
pad9.Length = 2.65
pad9.Reversed = True

# Sketch on XZ plane
sketch13 = body.newObject("Sketcher::SketchObject", "Sketch012")
sketch13.AttachmentSupport = (doc.getObject("XZ_Plane"), [""])
sketch13.MapMode = "FlatFace"
sketch13.AttachmentOffset = App.Placement(Vector(0, 0, -1.25), App.Rotation())
sketch13.addGeometry([
    Part.LineSegment(Vector(24, 12.6, 0), Vector(28, 12.6, 0)),
    Part.ArcOfCircle(Part.Circle(Vector(26, 14, 0), Vector(0, 0, 1), 2.5), math.radians(-145), math.radians(-35)),
], False)
sketch13.addConstraint([
    Sketcher.Constraint("Coincident", 0, 1, 1, 1),
    Sketcher.Constraint("Coincident", 1, 2, 0, 2),
    Sketcher.Constraint("Horizontal", 0),
    Sketcher.Constraint("Radius", 1, 2.5),
    Sketcher.Constraint("DistanceX", -1, 1, 1, 3, 26.0),
    Sketcher.Constraint("DistanceY", -1, 1, 1, 3, 14.0),
    Sketcher.Constraint("DistanceY", -1, 1, 0, 1, 12.55),
])
pocket4 = body.newObject("PartDesign::Pocket", "Pocket003")
pocket4.Profile = sketch13
pocket4.Type = "ThroughAll"
doc.recompute()

fillet2 = body.newObject("PartDesign::Fillet", "Fillet001")
fillet2.Base = (pocket4, edges_at(pocket4, [
    (26, 1.25, 12.55),
    (-39, 1.25, -11.5),
    (26, 1.25, -11.5),
    (26, 1.25, 16.5),
    (-39, 1.25, 16.5),
]))
fillet2.Radius = 1

# Sketch on XZ plane
sketch14 = body.newObject("Sketcher::SketchObject", "Sketch013")
sketch14.AttachmentSupport = (doc.getObject("XZ_Plane"), [""])
sketch14.MapMode = "FlatFace"
sketch14.AttachmentOffset = App.Placement(Vector(0, 0, -3.9), App.Rotation())
add_polygon(sketch14, [(3.8, 13.6), (3.8, -6.4), (1.8, -6.4), (1.8, 13.6)])  # lines 0-3
sketch14.addConstraint([
    Sketcher.Constraint("Vertical", 0),
    Sketcher.Constraint("Horizontal", 1),
    Sketcher.Constraint("Vertical", 2),
    Sketcher.Constraint("Horizontal", 3),
    Sketcher.Constraint("DistanceX", 1, 2, 1, 1, 2.0),
    Sketcher.Constraint("DistanceY", 0, 2, 0, 1, 19.95),
    Sketcher.Constraint("DistanceX", -1, 1, 0, 2, 3.8),
    Sketcher.Constraint("DistanceY", 0, 2, -1, 1, 6.375),
])
pad10 = body.newObject("PartDesign::Pad", "Pad009")
pad10.Profile = sketch14
pad10.Length = 1.5
pad10.Reversed = True

# Sketch on XZ plane
sketch15 = body.newObject("Sketcher::SketchObject", "Sketch014")
sketch15.AttachmentSupport = (doc.getObject("XZ_Plane"), [""])
sketch15.MapMode = "FlatFace"
sketch15.AttachmentOffset = App.Placement(Vector(0, 0, -3), App.Rotation())
add_polygon(sketch15, [(13, 0), (13, 11), (28, 11), (28, 0)])  # lines 0-3
sketch15.addConstraint([
    Sketcher.Constraint("Vertical", 0),
    Sketcher.Constraint("Horizontal", 1),
    Sketcher.Constraint("Vertical", 2),
    Sketcher.Constraint("Horizontal", 3),
    Sketcher.Constraint("DistanceX", 1, 1, 1, 2, 15.0),
    Sketcher.Constraint("DistanceY", 0, 1, 0, 2, 11.0),
    Sketcher.Constraint("DistanceX", -1, 1, 0, 2, 13.0),
    Sketcher.Constraint("DistanceY", -1, 1, 0, 2, 10.625),
])
pad11 = body.newObject("PartDesign::Pad", "Pad010")
pad11.Profile = sketch15
pad11.Length = 0.75
pad11.Reversed = True

# Sketch on XZ plane
sketch16 = body.newObject("Sketcher::SketchObject", "Sketch015")
sketch16.AttachmentSupport = (doc.getObject("XZ_Plane"), [""])
sketch16.MapMode = "FlatFace"
sketch16.AttachmentOffset = App.Placement(Vector(0, 0, -1.25), App.Rotation())
add_polygon(sketch16, [(-50, 30), (50, 30), (50, 29), (-49, 29), (-49, -29), (50, -29), (50, -30), (-50, -30)])  # lines 0-7
sketch16.addConstraint([
    Sketcher.Constraint("Horizontal", 0),
    Sketcher.Constraint("Vertical", 1),
    Sketcher.Constraint("Horizontal", 2),
    Sketcher.Constraint("Vertical", 3),
    Sketcher.Constraint("Horizontal", 4),
    Sketcher.Constraint("Vertical", 5),
    Sketcher.Constraint("Horizontal", 6),
    Sketcher.Constraint("Vertical", 7),
    Sketcher.Constraint("Symmetric", 0, 2, 6, 2, -1, 1),
    Sketcher.Constraint("Symmetric", 1, 2, 4, 2, -1),
    Sketcher.Constraint("DistanceX", 0, 1, 0, 2, 100.0),
    Sketcher.Constraint("DistanceX", 2, 2, 2, 1, 99.0),
    Sketcher.Constraint("DistanceY", 1, 2, 1, 1, 1.0),
    Sketcher.Constraint("DistanceY", 3, 2, 3, 1, 58.0),
])
pad12 = body.newObject("PartDesign::Pad", "Pad011")
pad12.Profile = sketch16
pad12.Length = 10.75
pad12.Reversed = True
doc.recompute()

fillet3 = body.newObject("PartDesign::Fillet", "Fillet002")
fillet3.Base = (pad12, edges_at(pad12, [(1.8, 3.9, -5.375), (1.8, 3.9, 12.575)]))
fillet3.Radius = 1

doc.recompute()
